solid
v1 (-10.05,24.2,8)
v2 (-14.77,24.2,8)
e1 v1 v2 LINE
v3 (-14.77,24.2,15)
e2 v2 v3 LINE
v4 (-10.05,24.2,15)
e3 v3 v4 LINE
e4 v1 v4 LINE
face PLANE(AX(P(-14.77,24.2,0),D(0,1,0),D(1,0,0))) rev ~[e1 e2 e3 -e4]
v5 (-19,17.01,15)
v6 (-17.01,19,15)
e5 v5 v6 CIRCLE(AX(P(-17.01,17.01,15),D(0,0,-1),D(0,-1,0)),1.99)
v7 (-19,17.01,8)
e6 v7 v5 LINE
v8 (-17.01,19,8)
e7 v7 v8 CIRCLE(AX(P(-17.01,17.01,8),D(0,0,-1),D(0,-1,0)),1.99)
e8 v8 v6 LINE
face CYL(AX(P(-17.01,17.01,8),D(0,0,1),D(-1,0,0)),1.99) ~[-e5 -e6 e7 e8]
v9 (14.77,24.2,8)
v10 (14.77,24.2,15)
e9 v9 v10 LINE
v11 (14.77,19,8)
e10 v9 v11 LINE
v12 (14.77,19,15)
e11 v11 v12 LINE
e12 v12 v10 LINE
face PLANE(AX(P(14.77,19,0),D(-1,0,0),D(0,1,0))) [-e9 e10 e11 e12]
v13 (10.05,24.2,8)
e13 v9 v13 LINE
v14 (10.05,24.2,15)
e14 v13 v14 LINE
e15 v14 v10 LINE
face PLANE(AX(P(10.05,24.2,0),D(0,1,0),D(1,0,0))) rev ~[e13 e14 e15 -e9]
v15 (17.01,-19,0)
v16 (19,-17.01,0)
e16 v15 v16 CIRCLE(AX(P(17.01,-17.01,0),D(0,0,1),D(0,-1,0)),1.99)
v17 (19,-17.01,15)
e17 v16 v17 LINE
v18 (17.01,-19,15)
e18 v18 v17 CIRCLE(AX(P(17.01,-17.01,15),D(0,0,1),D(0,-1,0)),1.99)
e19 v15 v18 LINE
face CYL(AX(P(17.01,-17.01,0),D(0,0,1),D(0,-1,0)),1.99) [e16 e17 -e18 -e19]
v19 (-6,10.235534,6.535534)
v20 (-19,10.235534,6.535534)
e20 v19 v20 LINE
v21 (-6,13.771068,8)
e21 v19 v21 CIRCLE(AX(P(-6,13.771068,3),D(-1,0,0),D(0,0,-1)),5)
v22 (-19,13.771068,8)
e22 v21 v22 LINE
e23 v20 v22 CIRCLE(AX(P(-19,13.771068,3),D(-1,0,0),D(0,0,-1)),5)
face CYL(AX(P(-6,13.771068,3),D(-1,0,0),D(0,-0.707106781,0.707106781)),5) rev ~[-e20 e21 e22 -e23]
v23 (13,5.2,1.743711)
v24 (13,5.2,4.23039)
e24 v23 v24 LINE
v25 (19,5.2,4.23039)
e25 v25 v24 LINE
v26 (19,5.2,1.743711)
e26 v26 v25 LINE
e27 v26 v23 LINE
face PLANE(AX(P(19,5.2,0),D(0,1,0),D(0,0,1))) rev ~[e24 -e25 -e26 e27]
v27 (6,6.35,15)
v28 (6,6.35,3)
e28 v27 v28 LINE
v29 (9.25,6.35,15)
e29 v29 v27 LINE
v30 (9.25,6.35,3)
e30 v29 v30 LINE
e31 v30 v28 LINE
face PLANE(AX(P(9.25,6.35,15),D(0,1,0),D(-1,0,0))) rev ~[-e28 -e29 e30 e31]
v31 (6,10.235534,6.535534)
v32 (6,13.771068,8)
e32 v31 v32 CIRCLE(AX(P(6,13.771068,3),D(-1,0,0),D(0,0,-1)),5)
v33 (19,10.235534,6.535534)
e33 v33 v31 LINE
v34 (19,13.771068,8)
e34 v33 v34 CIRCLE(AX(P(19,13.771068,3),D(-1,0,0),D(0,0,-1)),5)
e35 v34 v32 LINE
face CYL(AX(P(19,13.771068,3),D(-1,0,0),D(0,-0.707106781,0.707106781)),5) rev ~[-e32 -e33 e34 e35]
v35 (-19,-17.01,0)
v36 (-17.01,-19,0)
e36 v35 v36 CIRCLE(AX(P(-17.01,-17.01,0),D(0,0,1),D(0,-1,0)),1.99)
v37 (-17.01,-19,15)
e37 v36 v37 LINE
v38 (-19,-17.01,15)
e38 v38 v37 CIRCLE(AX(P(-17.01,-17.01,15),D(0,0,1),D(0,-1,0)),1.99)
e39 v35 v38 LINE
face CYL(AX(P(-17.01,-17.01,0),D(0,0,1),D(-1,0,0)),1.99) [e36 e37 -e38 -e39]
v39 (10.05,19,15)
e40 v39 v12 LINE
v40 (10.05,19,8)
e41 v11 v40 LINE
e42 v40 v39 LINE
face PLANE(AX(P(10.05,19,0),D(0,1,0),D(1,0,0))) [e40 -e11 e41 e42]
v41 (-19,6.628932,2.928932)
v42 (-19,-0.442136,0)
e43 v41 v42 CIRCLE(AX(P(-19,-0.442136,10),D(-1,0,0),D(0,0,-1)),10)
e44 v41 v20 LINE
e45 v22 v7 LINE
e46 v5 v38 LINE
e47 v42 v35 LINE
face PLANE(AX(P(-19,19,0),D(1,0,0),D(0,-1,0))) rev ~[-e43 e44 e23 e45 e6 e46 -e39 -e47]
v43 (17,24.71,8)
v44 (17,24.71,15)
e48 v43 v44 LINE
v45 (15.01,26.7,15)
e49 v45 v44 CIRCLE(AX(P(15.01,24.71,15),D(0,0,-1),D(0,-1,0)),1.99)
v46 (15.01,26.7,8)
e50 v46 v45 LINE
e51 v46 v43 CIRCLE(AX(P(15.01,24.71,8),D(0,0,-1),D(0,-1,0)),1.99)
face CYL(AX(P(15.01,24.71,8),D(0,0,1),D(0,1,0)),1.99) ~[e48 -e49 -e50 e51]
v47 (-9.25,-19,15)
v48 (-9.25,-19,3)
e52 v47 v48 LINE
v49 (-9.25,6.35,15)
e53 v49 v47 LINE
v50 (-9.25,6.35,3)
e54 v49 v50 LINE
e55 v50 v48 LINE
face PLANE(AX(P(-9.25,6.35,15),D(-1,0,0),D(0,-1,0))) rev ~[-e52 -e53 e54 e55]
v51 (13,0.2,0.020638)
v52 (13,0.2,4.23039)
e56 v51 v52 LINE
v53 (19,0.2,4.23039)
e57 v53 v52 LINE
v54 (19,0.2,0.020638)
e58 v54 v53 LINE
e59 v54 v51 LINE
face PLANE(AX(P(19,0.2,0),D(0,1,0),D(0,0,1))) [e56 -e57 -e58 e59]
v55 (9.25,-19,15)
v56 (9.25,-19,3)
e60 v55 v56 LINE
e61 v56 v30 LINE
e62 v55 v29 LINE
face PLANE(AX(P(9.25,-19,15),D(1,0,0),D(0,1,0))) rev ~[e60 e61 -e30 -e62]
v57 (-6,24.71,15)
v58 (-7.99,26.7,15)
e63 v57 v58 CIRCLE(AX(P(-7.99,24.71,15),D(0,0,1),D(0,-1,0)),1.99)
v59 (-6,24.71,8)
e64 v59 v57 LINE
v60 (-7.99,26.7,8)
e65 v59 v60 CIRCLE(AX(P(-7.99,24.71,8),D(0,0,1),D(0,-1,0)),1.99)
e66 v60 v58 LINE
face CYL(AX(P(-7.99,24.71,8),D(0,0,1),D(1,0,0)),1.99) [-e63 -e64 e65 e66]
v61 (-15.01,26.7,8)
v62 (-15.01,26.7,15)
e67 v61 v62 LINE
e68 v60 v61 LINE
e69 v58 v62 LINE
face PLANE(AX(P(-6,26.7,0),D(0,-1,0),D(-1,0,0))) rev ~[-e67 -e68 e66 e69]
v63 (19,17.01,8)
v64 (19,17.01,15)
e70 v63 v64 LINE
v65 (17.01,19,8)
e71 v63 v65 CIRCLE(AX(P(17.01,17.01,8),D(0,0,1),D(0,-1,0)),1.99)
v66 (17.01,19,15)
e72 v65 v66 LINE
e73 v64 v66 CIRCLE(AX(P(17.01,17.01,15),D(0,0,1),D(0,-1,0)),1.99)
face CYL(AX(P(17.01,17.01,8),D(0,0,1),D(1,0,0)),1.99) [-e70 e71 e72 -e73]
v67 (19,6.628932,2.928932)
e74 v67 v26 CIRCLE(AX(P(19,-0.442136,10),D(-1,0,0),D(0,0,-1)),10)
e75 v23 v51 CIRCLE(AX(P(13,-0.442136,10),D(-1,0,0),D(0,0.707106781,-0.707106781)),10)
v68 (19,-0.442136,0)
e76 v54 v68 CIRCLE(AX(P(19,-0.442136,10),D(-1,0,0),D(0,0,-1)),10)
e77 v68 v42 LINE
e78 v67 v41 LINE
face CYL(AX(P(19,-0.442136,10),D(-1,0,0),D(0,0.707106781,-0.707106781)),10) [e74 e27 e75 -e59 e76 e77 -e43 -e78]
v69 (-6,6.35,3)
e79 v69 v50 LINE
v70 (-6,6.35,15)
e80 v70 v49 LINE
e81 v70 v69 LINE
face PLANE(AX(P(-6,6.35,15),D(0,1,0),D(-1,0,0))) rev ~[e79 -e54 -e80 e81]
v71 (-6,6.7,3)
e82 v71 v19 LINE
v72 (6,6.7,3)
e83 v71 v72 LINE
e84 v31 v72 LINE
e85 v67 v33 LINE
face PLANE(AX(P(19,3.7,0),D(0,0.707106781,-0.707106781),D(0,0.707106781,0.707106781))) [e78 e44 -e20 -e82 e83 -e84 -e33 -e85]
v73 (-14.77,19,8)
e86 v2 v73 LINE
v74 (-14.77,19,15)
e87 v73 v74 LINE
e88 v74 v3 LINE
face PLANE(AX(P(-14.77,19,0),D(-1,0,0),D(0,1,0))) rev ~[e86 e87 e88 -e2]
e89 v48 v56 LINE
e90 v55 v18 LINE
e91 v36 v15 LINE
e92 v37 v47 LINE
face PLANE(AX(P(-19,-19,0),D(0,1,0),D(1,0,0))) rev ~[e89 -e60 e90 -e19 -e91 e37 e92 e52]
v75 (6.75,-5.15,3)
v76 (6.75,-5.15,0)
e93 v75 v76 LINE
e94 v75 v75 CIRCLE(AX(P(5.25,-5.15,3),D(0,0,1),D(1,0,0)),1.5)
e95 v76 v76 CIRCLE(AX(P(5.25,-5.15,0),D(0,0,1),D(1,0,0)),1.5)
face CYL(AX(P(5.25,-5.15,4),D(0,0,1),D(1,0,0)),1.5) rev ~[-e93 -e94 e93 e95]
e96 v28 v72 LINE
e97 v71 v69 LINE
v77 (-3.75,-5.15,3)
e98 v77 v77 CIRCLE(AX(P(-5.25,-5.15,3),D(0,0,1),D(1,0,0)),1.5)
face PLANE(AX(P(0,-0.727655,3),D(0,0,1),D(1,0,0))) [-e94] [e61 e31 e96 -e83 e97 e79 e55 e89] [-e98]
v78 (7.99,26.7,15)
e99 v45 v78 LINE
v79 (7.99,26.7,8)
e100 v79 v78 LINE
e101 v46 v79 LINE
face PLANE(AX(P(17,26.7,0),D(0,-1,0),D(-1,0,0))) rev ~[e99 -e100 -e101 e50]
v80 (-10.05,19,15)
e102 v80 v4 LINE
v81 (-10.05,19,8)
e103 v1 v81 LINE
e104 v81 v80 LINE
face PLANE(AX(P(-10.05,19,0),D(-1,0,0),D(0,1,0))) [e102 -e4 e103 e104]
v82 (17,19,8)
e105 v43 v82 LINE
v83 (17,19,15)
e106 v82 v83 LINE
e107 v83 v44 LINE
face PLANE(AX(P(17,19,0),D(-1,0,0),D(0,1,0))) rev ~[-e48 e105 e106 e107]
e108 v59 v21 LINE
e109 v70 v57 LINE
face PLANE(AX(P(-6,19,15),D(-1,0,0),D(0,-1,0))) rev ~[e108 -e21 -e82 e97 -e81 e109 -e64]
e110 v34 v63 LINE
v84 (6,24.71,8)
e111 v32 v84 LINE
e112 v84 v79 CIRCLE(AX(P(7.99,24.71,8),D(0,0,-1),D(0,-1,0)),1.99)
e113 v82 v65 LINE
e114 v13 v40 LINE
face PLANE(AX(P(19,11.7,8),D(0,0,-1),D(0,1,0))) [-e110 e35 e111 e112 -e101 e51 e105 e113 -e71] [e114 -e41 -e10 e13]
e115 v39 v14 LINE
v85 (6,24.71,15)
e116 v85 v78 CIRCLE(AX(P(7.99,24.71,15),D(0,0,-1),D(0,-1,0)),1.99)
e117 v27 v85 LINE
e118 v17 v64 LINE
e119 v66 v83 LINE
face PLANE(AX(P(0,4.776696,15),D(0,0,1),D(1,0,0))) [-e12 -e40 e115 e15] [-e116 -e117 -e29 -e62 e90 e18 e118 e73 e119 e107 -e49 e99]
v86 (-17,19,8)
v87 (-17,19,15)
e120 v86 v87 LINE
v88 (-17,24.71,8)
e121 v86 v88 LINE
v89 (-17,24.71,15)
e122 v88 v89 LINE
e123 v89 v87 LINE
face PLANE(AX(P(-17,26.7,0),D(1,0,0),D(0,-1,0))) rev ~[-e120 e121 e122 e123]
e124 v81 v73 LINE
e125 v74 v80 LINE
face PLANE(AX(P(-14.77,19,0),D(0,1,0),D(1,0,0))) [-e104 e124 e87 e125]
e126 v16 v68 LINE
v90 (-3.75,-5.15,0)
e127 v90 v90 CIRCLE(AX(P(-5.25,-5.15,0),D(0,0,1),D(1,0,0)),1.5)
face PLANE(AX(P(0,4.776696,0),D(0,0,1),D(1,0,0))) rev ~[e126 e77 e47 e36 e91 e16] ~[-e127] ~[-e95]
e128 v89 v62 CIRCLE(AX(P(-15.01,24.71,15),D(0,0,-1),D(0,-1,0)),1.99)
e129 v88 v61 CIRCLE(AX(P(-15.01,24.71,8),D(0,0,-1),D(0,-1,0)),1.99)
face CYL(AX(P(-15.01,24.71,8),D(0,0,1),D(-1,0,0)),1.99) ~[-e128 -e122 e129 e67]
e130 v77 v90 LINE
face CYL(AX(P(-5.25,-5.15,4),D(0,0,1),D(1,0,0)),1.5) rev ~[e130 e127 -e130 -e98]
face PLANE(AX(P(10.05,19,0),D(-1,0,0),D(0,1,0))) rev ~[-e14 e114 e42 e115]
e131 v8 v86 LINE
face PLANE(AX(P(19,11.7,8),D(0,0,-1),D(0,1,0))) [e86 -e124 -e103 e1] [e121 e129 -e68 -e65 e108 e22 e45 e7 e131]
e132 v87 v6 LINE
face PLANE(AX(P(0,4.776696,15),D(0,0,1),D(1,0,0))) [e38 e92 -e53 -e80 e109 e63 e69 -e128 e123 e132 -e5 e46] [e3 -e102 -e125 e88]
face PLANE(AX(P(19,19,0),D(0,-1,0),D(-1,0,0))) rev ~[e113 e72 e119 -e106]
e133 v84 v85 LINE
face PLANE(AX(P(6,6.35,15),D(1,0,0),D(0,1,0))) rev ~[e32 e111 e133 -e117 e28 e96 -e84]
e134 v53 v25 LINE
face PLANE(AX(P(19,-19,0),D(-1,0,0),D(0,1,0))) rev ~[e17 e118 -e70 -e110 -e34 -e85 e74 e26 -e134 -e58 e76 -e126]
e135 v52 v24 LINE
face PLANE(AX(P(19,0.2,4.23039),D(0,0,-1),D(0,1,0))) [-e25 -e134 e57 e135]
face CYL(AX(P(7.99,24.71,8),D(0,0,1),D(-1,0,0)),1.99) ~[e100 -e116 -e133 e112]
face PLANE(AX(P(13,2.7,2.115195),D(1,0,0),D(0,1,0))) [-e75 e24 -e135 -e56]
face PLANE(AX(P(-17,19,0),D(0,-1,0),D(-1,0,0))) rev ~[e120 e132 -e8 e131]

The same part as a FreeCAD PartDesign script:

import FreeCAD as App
import Part
import Sketcher


def edges_at(feature, points):
    """Names of the edges that pass closest to the given points."""
    edges = feature.Shape.Edges
    near = lambda p: min(range(len(edges)), key=lambda i: edges[i].distToShape(Part.Vertex(*p))[0])
    return sorted({f"Edge{near(p) + 1}" for p in points})


def add_polygon(sketch, points):
    """Adds a closed chain of lines whose ends are joined by coincident constraints."""
    first, n = sketch.GeometryCount, len(points)
    for a, b in zip(points, points[1:] + points[:1]):
        sketch.addGeometry(Part.LineSegment(App.Vector(*a, 0), App.Vector(*b, 0)), False)
    for i in range(n):
        sketch.addConstraint(Sketcher.Constraint("Coincident", first + i, 2, first + (i + 1) % n, 1))

doc = App.newDocument("Part")
body = doc.addObject("PartDesign::Body", "Body")

# Sketch on XY plane
sketch1 = doc.addObject("Sketcher::SketchObject", "Sketch")
body.addObject(sketch1)
sketch1.AttachmentSupport = (doc.XY_Plane, [""])
sketch1.MapMode = "FlatFace"
add_polygon(sketch1, [(-19, 19), (-19, -19), (19, -19), (19, 19), (17, 19), (17, 26.7), (6, 26.7), (6, 19), (-6, 19), (-6, 26.7), (-17, 26.7), (-17, 19)])  # lines 0-11
add_polygon(sketch1, [(-10.1, 19), (-14.8, 19), (-14.8, 24.2), (-10.1, 24.2)])  # lines 12-15
add_polygon(sketch1, [(14.8, 19), (10.1, 19), (10.1, 24.2), (14.8, 24.2)])  # lines 16-19
sketch1.addConstraint(Sketcher.Constraint("Vertical", 0))
sketch1.addConstraint(Sketcher.Constraint("Horizontal", 1))
sketch1.addConstraint(Sketcher.Constraint("Vertical", 2))
sketch1.addConstraint(Sketcher.Constraint("Horizontal", 3))
sketch1.addConstraint(Sketcher.Constraint("Vertical", 4))
sketch1.addConstraint(Sketcher.Constraint("Horizontal", 5))
sketch1.addConstraint(Sketcher.Constraint("Vertical", 6))
sketch1.addConstraint(Sketcher.Constraint("Horizontal", 7))
sketch1.addConstraint(Sketcher.Constraint("Vertical", 8))
sketch1.addConstraint(Sketcher.Constraint("Horizontal", 9))
sketch1.addConstraint(Sketcher.Constraint("Vertical", 10))
sketch1.addConstraint(Sketcher.Constraint("Horizontal", 11))
sketch1.addConstraint(Sketcher.Constraint("Horizontal", 12))
sketch1.addConstraint(Sketcher.Constraint("Vertical", 13))
sketch1.addConstraint(Sketcher.Constraint("Horizontal", 14))
sketch1.addConstraint(Sketcher.Constraint("Vertical", 15))
sketch1.addConstraint(Sketcher.Constraint("Horizontal", 16))
sketch1.addConstraint(Sketcher.Constraint("Vertical", 17))
sketch1.addConstraint(Sketcher.Constraint("Horizontal", 18))
sketch1.addConstraint(Sketcher.Constraint("Vertical", 19))
sketch1.addConstraint(Sketcher.Constraint("Symmetric", 0, 2, 2, 2, -1, 1))
sketch1.addConstraint(Sketcher.Constraint("Symmetric", 5, 2, 8, 2, -2))
sketch1.addConstraint(Sketcher.Constraint("Symmetric", 3, 2, 10, 2, -2))
sketch1.addConstraint(Sketcher.Constraint("Symmetric", 15, 2, 16, 2, -2))
sketch1.addConstraint(Sketcher.Constraint("Symmetric", 13, 2, 18, 2, -2))
sketch1.addConstraint(Sketcher.Constraint("Horizontal", 3, 2, 6, 2))
sketch1.addConstraint(Sketcher.Constraint("Horizontal", 11, 2, 12, 2))
sketch1.addConstraint(Sketcher.Constraint("Equal", 1, 0))
sketch1.addConstraint(Sketcher.Constraint("DistanceX", 1, 1, 1, 2, 38.0))
sketch1.addConstraint(Sketcher.Constraint("DistanceX", 3, 2, 3, 1, 2.0))
sketch1.addConstraint(Sketcher.Constraint("DistanceX", 5, 2, 5, 1, 11.0))
sketch1.addConstraint(Sketcher.Constraint("DistanceY", 4, 1, 4, 2, 7.7))
sketch1.addConstraint(Sketcher.Constraint("DistanceY", 13, 1, 13, 2, 5.2))
sketch1.addConstraint(Sketcher.Constraint("DistanceX", 12, 2, 12, 1, 4.72))
sketch1.addConstraint(Sketcher.Constraint("DistanceX", 12, 2, -1, 1, 14.77))
pad1 = doc.addObject("PartDesign::Pad", "Pad")
body.addObject(pad1)
pad1.Profile = sketch1
pad1.Length = 15

# Sketch on YZ plane
sketch2 = doc.addObject("Sketcher::SketchObject", "Sketch001")
body.addObject(sketch2)
sketch2.AttachmentSupport = (doc.YZ_Plane, [""])
sketch2.MapMode = "FlatFace"
sketch2.AttachmentOffset = App.Placement(App.Vector(0, 0, 19), App.Rotation())
add_polygon(sketch2, [(27, 0), (27, 8), (12, 8), (4, 0)])  # lines 0-3
sketch2.addConstraint(Sketcher.Constraint("Vertical", 0))
sketch2.addConstraint(Sketcher.Constraint("Horizontal", 1))
sketch2.addConstraint(Sketcher.Constraint("Horizontal", 3))
sketch2.addConstraint(Sketcher.Constraint("PointOnObject", 2, 2, -1))
sketch2.addConstraint(Sketcher.Constraint("DistanceX", 1, 2, 1, 1, 15.0))
sketch2.addConstraint(Sketcher.Constraint("DistanceX", 3, 1, 3, 2, 23.0))
sketch2.addConstraint(Sketcher.Constraint("DistanceY", 0, 1, 0, 2, 8.0))
sketch2.addConstraint(Sketcher.Constraint("DistanceX", -1, 1, 0, 2, 26.7))
pocket1 = doc.addObject("PartDesign::Pocket", "Pocket")
body.addObject(pocket1)
pocket1.Profile = sketch2
pocket1.Type = "ThroughAll"

# Sketch on XY plane
sketch3 = doc.addObject("Sketcher::SketchObject", "Sketch002")
body.addObject(sketch3)
sketch3.AttachmentSupport = (doc.XY_Plane, [""])
sketch3.MapMode = "FlatFace"
sketch3.AttachmentOffset = App.Placement(App.Vector(0, 0, 15), App.Rotation())
add_polygon(sketch3, [(-9.2, -19), (9.2, -19), (9.2, 6.3), (6, 6.3), (6, 19), (-6, 19), (-6, 6.3), (-9.2, 6.3)])  # lines 0-7
sketch3.addConstraint(Sketcher.Constraint("Horizontal", 0))
sketch3.addConstraint(Sketcher.Constraint("Vertical", 1))
sketch3.addConstraint(Sketcher.Constraint("Horizontal", 2))
sketch3.addConstraint(Sketcher.Constraint("Vertical", 3))
sketch3.addConstraint(Sketcher.Constraint("Horizontal", 4))
sketch3.addConstraint(Sketcher.Constraint("Vertical", 5))
sketch3.addConstraint(Sketcher.Constraint("Horizontal", 6))
sketch3.addConstraint(Sketcher.Constraint("Vertical", 7))
sketch3.addConstraint(Sketcher.Constraint("Symmetric", 2, 2, 5, 2, -2))
sketch3.addConstraint(Sketcher.Constraint("Equal", 2, 6))
sketch3.addConstraint(Sketcher.Constraint("DistanceX", 4, 2, 4, 1, 12.0))
sketch3.addConstraint(Sketcher.Constraint("DistanceX", 0, 1, 0, 2, 18.5))
sketch3.addConstraint(Sketcher.Constraint("DistanceY", 0, 2, -1, 1, 19.0))
sketch3.addConstraint(Sketcher.Constraint("DistanceY", -1, 1, 3, 2, 19.0))
sketch3.addConstraint(Sketcher.Constraint("DistanceY", 1, 1, 1, 2, 25.35))
pocket2 = doc.addObject("PartDesign::Pocket", "Pocket001")
body.addObject(pocket2)
pocket2.Profile = sketch3
pocket2.Length = 12

# Sketch on XY plane
sketch4 = doc.addObject("Sketcher::SketchObject", "Sketch003")
body.addObject(sketch4)
sketch4.AttachmentSupport = (doc.XY_Plane, [""])
sketch4.MapMode = "FlatFace"
sketch4.AttachmentOffset = App.Placement(App.Vector(0, 0, 4), App.Rotation())
sketch4.addGeometry(Part.Circle(App.Vector(-5.2, -5.2, 0), App.Vector(0, 0, 1), 1.5), False)
sketch4.addGeometry(Part.Circle(App.Vector(5.2, -5.2, 0), App.Vector(0, 0, 1), 1.5), False)
sketch4.addConstraint(Sketcher.Constraint("Equal", 0, 1))
sketch4.addConstraint(Sketcher.Constraint("Symmetric", 0, 3, 1, 3, -2))
sketch4.addConstraint(Sketcher.Constraint("Diameter", 0, 3.0))
sketch4.addConstraint(Sketcher.Constraint("DistanceX", 0, 3, 1, 3, 10.5))
sketch4.addConstraint(Sketcher.Constraint("DistanceY", 0, 3, -1, 1, 5.15))
pocket3 = doc.addObject("PartDesign::Pocket", "Pocket002")
body.addObject(pocket3)
pocket3.Profile = sketch4
pocket3.Length = 5
doc.recompute()

fillet = doc.addObject("PartDesign::Fillet", "Fillet")
body.addObject(fillet)
fillet.Base = (pocket3, edges_at(pocket3, [
    (17, 26.7, 11.5),
    (6, 26.7, 11.5),
    (-6, 26.7, 11.5),
    (-17, 26.7, 11.5),
    (-19, 19, 11.5),
    (19, 19, 11.5),
    (19, -19, 7.5),
    (-19, -19, 7.5),
]))
fillet.Radius = 1.99
doc.recompute()

fillet2 = doc.addObject("PartDesign::Fillet", "Fillet001")
body.addObject(fillet2)
fillet2.Base = (fillet, edges_at(fillet, [(0, 3.7, 0)]))
fillet2.Radius = 10
doc.recompute()

fillet3 = doc.addObject("PartDesign::Fillet", "Fillet002")
body.addObject(fillet3)
fillet3.Base = (fillet2, edges_at(fillet2, [(12.5, 11.7, 8), (-12.5, 11.7, 8)]))
fillet3.Radius = 5

# Sketch on YZ plane
sketch5 = doc.addObject("Sketcher::SketchObject", "Sketch004")
body.addObject(sketch5)
sketch5.AttachmentSupport = (doc.YZ_Plane, [""])
sketch5.MapMode = "FlatFace"
sketch5.AttachmentOffset = App.Placement(App.Vector(0, 0, 19), App.Rotation())
add_polygon(sketch5, [(0.2, 4.2), (0.2, 0), (5.2, 0), (5.2, 4.2)])  # lines 0-3
sketch5.addConstraint(Sketcher.Constraint("Vertical", 0))
sketch5.addConstraint(Sketcher.Constraint("Horizontal", 1))
sketch5.addConstraint(Sketcher.Constraint("Vertical", 2))
sketch5.addConstraint(Sketcher.Constraint("Horizontal", 3))
sketch5.addConstraint(Sketcher.Constraint("PointOnObject", 0, 2, -1))
sketch5.addConstraint(Sketcher.Constraint("DistanceX", 1, 1, 1, 2, 5.0))
sketch5.addConstraint(Sketcher.Constraint("DistanceX", -1, 1, 0, 2, 0.2))
sketch5.addConstraint(Sketcher.Constraint("DistanceY", 0, 2, 0, 1, 4.23039))
pocket4 = doc.addObject("PartDesign::Pocket", "Pocket003")
body.addObject(pocket4)
pocket4.Profile = sketch5
pocket4.Length = 6

doc.recompute()
